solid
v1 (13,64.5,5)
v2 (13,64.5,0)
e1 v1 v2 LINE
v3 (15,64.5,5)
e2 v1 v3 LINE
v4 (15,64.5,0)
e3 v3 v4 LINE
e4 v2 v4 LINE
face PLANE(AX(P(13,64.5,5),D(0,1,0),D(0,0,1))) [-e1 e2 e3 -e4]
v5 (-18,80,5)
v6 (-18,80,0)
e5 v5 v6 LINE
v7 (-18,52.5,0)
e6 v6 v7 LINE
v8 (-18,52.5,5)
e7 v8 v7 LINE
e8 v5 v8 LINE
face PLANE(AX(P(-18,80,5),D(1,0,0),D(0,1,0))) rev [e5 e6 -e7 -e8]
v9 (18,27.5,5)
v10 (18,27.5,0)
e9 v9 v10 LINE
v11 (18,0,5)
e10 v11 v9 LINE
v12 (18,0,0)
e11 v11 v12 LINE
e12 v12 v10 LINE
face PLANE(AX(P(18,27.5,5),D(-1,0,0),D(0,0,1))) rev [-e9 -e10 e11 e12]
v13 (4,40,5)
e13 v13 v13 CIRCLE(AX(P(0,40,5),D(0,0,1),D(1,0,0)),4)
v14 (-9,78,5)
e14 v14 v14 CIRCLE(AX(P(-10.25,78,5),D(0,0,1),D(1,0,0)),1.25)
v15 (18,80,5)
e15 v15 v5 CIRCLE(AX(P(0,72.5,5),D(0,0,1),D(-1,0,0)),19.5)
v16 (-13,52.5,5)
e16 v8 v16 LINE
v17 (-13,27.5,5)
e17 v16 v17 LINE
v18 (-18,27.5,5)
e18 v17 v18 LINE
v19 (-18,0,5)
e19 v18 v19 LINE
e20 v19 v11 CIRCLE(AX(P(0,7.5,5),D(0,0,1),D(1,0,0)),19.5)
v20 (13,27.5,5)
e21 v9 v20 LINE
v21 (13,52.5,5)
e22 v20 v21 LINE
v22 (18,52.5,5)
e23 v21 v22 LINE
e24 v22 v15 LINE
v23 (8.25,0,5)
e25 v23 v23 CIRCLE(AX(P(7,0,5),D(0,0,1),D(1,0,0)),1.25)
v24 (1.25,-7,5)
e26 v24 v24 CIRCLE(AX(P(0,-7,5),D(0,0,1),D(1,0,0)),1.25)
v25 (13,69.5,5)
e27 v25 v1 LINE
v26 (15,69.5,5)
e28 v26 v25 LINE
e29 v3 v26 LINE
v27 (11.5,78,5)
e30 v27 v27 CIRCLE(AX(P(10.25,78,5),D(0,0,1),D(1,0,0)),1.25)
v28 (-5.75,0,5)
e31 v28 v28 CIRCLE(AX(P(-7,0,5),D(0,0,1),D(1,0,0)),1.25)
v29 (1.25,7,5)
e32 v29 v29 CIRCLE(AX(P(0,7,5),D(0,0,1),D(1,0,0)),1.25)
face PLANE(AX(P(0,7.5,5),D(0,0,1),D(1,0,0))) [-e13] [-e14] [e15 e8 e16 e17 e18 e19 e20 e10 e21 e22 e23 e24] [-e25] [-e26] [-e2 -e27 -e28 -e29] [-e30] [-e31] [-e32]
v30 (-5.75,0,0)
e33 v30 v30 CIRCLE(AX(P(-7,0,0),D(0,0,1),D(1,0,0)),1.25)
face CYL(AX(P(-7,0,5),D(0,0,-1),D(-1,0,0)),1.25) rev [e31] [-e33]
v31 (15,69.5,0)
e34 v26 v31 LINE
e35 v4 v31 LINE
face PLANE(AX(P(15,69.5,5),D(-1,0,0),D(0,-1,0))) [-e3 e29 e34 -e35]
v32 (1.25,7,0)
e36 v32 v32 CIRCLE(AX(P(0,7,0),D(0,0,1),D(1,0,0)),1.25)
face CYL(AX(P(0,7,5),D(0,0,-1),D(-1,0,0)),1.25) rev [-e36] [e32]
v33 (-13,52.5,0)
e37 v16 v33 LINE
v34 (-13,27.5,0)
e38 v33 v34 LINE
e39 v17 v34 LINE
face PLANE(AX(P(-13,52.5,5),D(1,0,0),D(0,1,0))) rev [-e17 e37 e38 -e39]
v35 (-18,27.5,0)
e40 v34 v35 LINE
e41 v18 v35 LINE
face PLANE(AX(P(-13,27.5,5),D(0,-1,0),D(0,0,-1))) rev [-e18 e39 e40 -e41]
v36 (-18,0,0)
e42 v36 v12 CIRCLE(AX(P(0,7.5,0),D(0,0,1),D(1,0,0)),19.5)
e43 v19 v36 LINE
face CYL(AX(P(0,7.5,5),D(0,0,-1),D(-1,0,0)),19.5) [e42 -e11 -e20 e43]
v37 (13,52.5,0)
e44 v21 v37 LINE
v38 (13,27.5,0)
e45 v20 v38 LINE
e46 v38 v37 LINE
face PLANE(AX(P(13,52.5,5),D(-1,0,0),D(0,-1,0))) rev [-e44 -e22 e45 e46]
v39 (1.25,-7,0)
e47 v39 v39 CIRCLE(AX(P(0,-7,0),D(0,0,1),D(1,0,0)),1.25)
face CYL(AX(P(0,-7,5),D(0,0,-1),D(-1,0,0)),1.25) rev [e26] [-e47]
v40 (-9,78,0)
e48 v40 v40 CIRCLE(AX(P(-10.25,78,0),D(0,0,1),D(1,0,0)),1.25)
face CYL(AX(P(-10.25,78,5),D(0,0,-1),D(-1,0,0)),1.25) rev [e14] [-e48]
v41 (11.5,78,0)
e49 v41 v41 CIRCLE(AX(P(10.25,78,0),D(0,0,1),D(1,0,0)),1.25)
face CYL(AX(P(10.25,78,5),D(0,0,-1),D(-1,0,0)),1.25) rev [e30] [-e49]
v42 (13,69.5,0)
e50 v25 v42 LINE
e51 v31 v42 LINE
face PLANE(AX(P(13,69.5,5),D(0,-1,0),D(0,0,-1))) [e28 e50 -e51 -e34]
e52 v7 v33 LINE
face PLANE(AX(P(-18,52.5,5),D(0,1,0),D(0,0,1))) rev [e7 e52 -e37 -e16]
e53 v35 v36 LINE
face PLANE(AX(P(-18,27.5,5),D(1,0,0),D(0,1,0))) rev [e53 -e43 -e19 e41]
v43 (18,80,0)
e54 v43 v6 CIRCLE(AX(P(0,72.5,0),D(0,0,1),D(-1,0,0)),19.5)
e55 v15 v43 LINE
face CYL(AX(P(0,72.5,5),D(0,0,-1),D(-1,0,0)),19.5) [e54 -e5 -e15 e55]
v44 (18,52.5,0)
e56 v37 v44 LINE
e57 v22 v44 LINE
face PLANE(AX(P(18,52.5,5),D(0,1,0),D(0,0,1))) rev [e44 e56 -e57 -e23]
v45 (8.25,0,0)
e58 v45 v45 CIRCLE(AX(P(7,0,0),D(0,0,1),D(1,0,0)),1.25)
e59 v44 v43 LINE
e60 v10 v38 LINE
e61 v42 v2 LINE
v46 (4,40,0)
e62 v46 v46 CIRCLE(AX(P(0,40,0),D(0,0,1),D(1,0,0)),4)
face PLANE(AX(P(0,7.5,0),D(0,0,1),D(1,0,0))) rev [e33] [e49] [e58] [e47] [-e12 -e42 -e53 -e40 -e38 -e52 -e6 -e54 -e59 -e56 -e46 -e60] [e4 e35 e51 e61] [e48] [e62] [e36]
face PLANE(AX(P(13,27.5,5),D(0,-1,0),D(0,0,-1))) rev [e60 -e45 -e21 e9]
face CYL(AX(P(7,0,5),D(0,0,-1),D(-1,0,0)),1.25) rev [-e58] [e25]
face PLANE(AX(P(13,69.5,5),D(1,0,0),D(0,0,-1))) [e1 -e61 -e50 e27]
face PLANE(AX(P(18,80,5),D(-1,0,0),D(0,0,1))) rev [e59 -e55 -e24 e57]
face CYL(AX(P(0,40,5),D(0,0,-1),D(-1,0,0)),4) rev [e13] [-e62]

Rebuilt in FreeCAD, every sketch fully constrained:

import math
import FreeCAD as App
import Part
import Sketcher
Q = App.Units.Quantity


def add_polygon(sketch, points):
    """Adds a closed chain of lines whose ends are joined by coincident constraints."""
    first, n = sketch.GeometryCount, len(points)
    for a, b in zip(points, points[1:] + points[:1]):
        sketch.addGeometry(Part.LineSegment(App.Vector(*a, 0), App.Vector(*b, 0)), False)
    for i in range(n):
        sketch.addConstraint(Sketcher.Constraint("Coincident", first + i, 2, first + (i + 1) % n, 1))

doc = App.newDocument("Part")
body = doc.addObject("PartDesign::Body", "Body")

# Sketch on XY plane
sketch1 = doc.addObject("Sketcher::SketchObject", "Sketch")
body.addObject(sketch1)
sketch1.AttachmentSupport = (doc.XY_Plane, [""])
sketch1.MapMode = "FlatFace"
sketch1.addGeometry(Part.LineSegment(App.Vector(-18, 80, 0), App.Vector(-18, 52.5, 0)), False)  # 0
sketch1.addGeometry(Part.LineSegment(App.Vector(-18, 52.5, 0), App.Vector(-13, 52.5, 0)), False)  # 1
sketch1.addGeometry(Part.LineSegment(App.Vector(-13, 52.5, 0), App.Vector(-13, 27.5, 0)), False)  # 2
sketch1.addGeometry(Part.LineSegment(App.Vector(-13, 27.5, 0), App.Vector(-18, 27.5, 0)), False)  # 3
sketch1.addGeometry(Part.LineSegment(App.Vector(-18, 27.5, 0), App.Vector(-18, 0, 0)), False)  # 4
sketch1.addGeometry(Part.ArcOfCircle(Part.Circle(App.Vector(0, 7.5, 0), App.Vector(0, 0, 1), 19.5), math.radians(-157), math.radians(-23)), False)  # 5
sketch1.addGeometry(Part.LineSegment(App.Vector(18, 0, 0), App.Vector(18, 27.5, 0)), False)  # 6
sketch1.addGeometry(Part.LineSegment(App.Vector(18, 27.5, 0), App.Vector(13, 27.5, 0)), False)  # 7
sketch1.addGeometry(Part.LineSegment(App.Vector(13, 27.5, 0), App.Vector(13, 52.5, 0)), False)  # 8
sketch1.addGeometry(Part.LineSegment(App.Vector(13, 52.5, 0), App.Vector(18, 52.5, 0)), False)  # 9
sketch1.addGeometry(Part.LineSegment(App.Vector(18, 52.5, 0), App.Vector(18, 80, 0)), False)  # 10
sketch1.addGeometry(Part.ArcOfCircle(Part.Circle(App.Vector(0, 72.5, 0), App.Vector(0, 0, 1), 19.5), math.radians(23), math.radians(157)), False)  # 11
sketch1.addGeometry(Part.Circle(App.Vector(-7, 0, 0), App.Vector(0, 0, 1), 1.2), False)  # 12
sketch1.addGeometry(Part.Circle(App.Vector(0, -7, 0), App.Vector(0, 0, 1), 1.2), False)  # 13
sketch1.addGeometry(Part.Circle(App.Vector(0, 7, 0), App.Vector(0, 0, 1), 1.2), False)  # 14
sketch1.addGeometry(Part.Circle(App.Vector(7, 0, 0), App.Vector(0, 0, 1), 1.2), False)  # 15
sketch1.addGeometry(Part.Circle(App.Vector(0, 40, 0), App.Vector(0, 0, 1), 4), False)  # 16
sketch1.addGeometry(Part.Circle(App.Vector(-10.2, 78, 0), App.Vector(0, 0, 1), 1.2), False)  # 17
add_polygon(sketch1, [(15, 64.5), (13, 64.5), (13, 69.5), (15, 69.5)])  # lines 18-21
sketch1.addGeometry(Part.Circle(App.Vector(10.2, 78, 0), App.Vector(0, 0, 1), 1.2), False)  # 22
sketch1.addConstraint(Sketcher.Constraint("Coincident", 0, 2, 1, 1))
sketch1.addConstraint(Sketcher.Constraint("Coincident", 1, 2, 2, 1))
sketch1.addConstraint(Sketcher.Constraint("Coincident", 2, 2, 3, 1))
sketch1.addConstraint(Sketcher.Constraint("Coincident", 3, 2, 4, 1))
sketch1.addConstraint(Sketcher.Constraint("Coincident", 4, 2, 5, 1))
sketch1.addConstraint(Sketcher.Constraint("Coincident", 5, 2, 6, 1))
sketch1.addConstraint(Sketcher.Constraint("Coincident", 6, 2, 7, 1))
sketch1.addConstraint(Sketcher.Constraint("Coincident", 7, 2, 8, 1))
sketch1.addConstraint(Sketcher.Constraint("Coincident", 8, 2, 9, 1))
sketch1.addConstraint(Sketcher.Constraint("Coincident", 9, 2, 10, 1))
sketch1.addConstraint(Sketcher.Constraint("Coincident", 10, 2, 11, 1))
sketch1.addConstraint(Sketcher.Constraint("Coincident", 11, 2, 0, 1))
sketch1.addConstraint(Sketcher.Constraint("Vertical", 0))
sketch1.addConstraint(Sketcher.Constraint("Horizontal", 1))
sketch1.addConstraint(Sketcher.Constraint("Vertical", 2))
sketch1.addConstraint(Sketcher.Constraint("Horizontal", 3))
sketch1.addConstraint(Sketcher.Constraint("Vertical", 4))
sketch1.addConstraint(Sketcher.Constraint("Vertical", 6))
sketch1.addConstraint(Sketcher.Constraint("Horizontal", 7))
sketch1.addConstraint(Sketcher.Constraint("Vertical", 8))
sketch1.addConstraint(Sketcher.Constraint("Horizontal", 9))
sketch1.addConstraint(Sketcher.Constraint("Vertical", 10))
sketch1.addConstraint(Sketcher.Constraint("Horizontal", 18))
sketch1.addConstraint(Sketcher.Constraint("Vertical", 19))
sketch1.addConstraint(Sketcher.Constraint("Horizontal", 20))
sketch1.addConstraint(Sketcher.Constraint("Vertical", 21))
sketch1.addConstraint(Sketcher.Constraint("Equal", 5, 11))
sketch1.addConstraint(Sketcher.Constraint("Equal", 12, 13))
sketch1.addConstraint(Sketcher.Constraint("Equal", 13, 14))
sketch1.addConstraint(Sketcher.Constraint("Equal", 14, 15))
sketch1.addConstraint(Sketcher.Constraint("Equal", 15, 17))
sketch1.addConstraint(Sketcher.Constraint("Equal", 17, 22))
sketch1.addConstraint(Sketcher.Constraint("Symmetric", 13, 3, 14, 3, -1, 1))
sketch1.addConstraint(Sketcher.Constraint("Symmetric", 12, 3, 15, 3, -1, 1))
sketch1.addConstraint(Sketcher.Constraint("Symmetric", 4, 2, 5, 2, -1, 1))
sketch1.addConstraint(Sketcher.Constraint("Symmetric", 17, 3, 22, 3, -2))
sketch1.addConstraint(Sketcher.Constraint("Symmetric", 2, 2, 7, 2, -2))
sketch1.addConstraint(Sketcher.Constraint("Symmetric", 0, 2, 9, 2, -2))
sketch1.addConstraint(Sketcher.Constraint("PointOnObject", 5, 3, -2))
sketch1.addConstraint(Sketcher.Constraint("PointOnObject", 11, 3, -2))
sketch1.addConstraint(Sketcher.Constraint("PointOnObject", 12, 3, -1))
sketch1.addConstraint(Sketcher.Constraint("PointOnObject", 13, 3, -2))
sketch1.addConstraint(Sketcher.Constraint("PointOnObject", 16, 3, -2))
sketch1.addConstraint(Sketcher.Constraint("Vertical", 0, 2, 3, 2))
sketch1.addConstraint(Sketcher.Constraint("Vertical", 8, 2, 18, 2))
sketch1.addConstraint(Sketcher.Constraint("Equal", 0, 4))
sketch1.addConstraint(Sketcher.Constraint("Equal", 9, 19))
sketch1.addConstraint(Sketcher.Constraint("Diameter", 16, Q("8 mm")))
sketch1.addConstraint(Sketcher.Constraint("Diameter", 12, Q("2.5 mm")))
sketch1.addConstraint(Sketcher.Constraint("Radius", 5, Q("19.5 mm")))
sketch1.addConstraint(Sketcher.Constraint("DistanceX", 1, 1, 1, 2, Q("5 mm")))
sketch1.addConstraint(Sketcher.Constraint("DistanceX", 18, 2, 18, 1, Q("2 mm")))
sketch1.addConstraint(Sketcher.Constraint("DistanceY", 2, 2, 2, 1, Q("25 mm")))
sketch1.addConstraint(Sketcher.Constraint("DistanceY", 0, 2, 0, 1, Q("27.5 mm")))
sketch1.addConstraint(Sketcher.Constraint("DistanceX", 12, 3, -1, 1, Q("7 mm")))
sketch1.addConstraint(Sketcher.Constraint("DistanceY", 13, 3, -1, 1, Q("7 mm")))
sketch1.addConstraint(Sketcher.Constraint("DistanceY", -1, 1, 16, 3, Q("40 mm")))
sketch1.addConstraint(Sketcher.Constraint("DistanceY", -1, 1, 17, 3, Q("78 mm")))
sketch1.addConstraint(Sketcher.Constraint("DistanceX", 0, 2, -1, 1, Q("18 mm")))
sketch1.addConstraint(Sketcher.Constraint("DistanceY", 8, 2, 18, 2, Q("12 mm")))
sketch1.addConstraint(Sketcher.Constraint("DistanceX", 17, 3, 22, 3, Q("20.5 mm")))
pad1 = doc.addObject("PartDesign::Pad", "Pad")
body.addObject(pad1)
pad1.Profile = sketch1
pad1.Length = 5

doc.recompute()
